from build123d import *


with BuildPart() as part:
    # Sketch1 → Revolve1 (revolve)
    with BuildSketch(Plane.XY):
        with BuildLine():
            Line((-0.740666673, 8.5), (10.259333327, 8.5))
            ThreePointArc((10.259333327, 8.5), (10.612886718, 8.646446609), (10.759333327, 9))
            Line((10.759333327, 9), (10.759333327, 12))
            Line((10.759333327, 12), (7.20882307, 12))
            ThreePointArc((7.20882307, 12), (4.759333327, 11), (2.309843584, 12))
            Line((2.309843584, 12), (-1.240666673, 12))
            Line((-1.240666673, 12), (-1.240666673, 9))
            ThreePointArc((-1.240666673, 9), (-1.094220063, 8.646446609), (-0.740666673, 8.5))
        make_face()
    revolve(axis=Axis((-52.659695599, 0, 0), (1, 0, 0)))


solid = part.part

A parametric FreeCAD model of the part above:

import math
import FreeCAD as App
import Part
import Sketcher
Q = App.Units.Quantity

doc = App.newDocument("Part")
body = doc.addObject("PartDesign::Body", "Body")

# Sketch on XY plane
sketch1 = body.newObject("Sketcher::SketchObject", "Sketch")
sketch1.AttachmentSupport = (doc.getObject("XY_Plane"), [""])
sketch1.MapMode = "FlatFace"
sketch1.addGeometry([
    Part.LineSegment(App.Vector(-0.740667, 8.5, 0), App.Vector(10.259333, 8.5, 0)),  # 0
    Part.ArcOfCircle(Part.Circle(App.Vector(10.259333, 9, 0), App.Vector(0, 0, 1), 0.5), math.radians(-90), math.radians(0)),  # 1
    Part.LineSegment(App.Vector(10.759333, 9, 0), App.Vector(10.759333, 12, 0)),  # 2
    Part.LineSegment(App.Vector(10.759333, 12, 0), App.Vector(7.208823, 12, 0)),  # 3
    Part.ArcOfCircle(Part.Circle(App.Vector(4.759333, 14.5, 0), App.Vector(0, 0, 1), 3.5), math.radians(-134.415309), math.radians(-45.584691)),  # 4
    Part.LineSegment(App.Vector(2.309844, 12, 0), App.Vector(-1.240667, 12, 0)),  # 5
    Part.LineSegment(App.Vector(-1.240667, 12, 0), App.Vector(-1.240667, 9, 0)),  # 6
    Part.ArcOfCircle(Part.Circle(App.Vector(-0.740667, 9, 0), App.Vector(0, 0, 1), 0.5), math.radians(180), math.radians(270)),  # 7
], False)
sketch1.addConstraint([
    Sketcher.Constraint("Tangent", 0, 2, 1, 1),
    Sketcher.Constraint("Tangent", 1, 2, 2, 1),
    Sketcher.Constraint("Coincident", 2, 2, 3, 1),
    Sketcher.Constraint("Coincident", 3, 2, 4, 2),
    Sketcher.Constraint("Coincident", 4, 1, 5, 1),
    Sketcher.Constraint("Coincident", 5, 2, 6, 1),
    Sketcher.Constraint("Tangent", 6, 2, 7, 1),
    Sketcher.Constraint("Tangent", 7, 2, 0, 1),
    Sketcher.Constraint("Horizontal", 0),
    Sketcher.Constraint("Vertical", 2),
    Sketcher.Constraint("Horizontal", 3),
    Sketcher.Constraint("Horizontal", 5),
    Sketcher.Constraint("Vertical", 6),
    Sketcher.Constraint("Equal", 1, 7),
    Sketcher.Constraint("Horizontal", 3, 2, 4, 1),
    Sketcher.Constraint("Equal", 3, 5),
    Sketcher.Constraint("Radius", 1, Q("0.5 mm")),
    Sketcher.Constraint("Radius", 4, Q("3.5 mm")),
    Sketcher.Constraint("DistanceX", 0, 1, 0, 2, Q("11 mm")),
    Sketcher.Constraint("DistanceY", 2, 1, 2, 2, Q("3 mm")),
    Sketcher.Constraint("DistanceY", -1, 1, 1, 3, Q("9 mm")),
    Sketcher.Constraint("DistanceY", 0, 2, 4, 3, Q("6 mm")),
    Sketcher.Constraint("DistanceX", -1, 1, 1, 3, Q("10.259333 mm")),
])
revolution = body.newObject("PartDesign::Revolution", "Revolution")
revolution.Profile = sketch1
revolution.ReferenceAxis = (sketch1, ["H_Axis"])
revolution.Angle = 360

doc.recompute()
